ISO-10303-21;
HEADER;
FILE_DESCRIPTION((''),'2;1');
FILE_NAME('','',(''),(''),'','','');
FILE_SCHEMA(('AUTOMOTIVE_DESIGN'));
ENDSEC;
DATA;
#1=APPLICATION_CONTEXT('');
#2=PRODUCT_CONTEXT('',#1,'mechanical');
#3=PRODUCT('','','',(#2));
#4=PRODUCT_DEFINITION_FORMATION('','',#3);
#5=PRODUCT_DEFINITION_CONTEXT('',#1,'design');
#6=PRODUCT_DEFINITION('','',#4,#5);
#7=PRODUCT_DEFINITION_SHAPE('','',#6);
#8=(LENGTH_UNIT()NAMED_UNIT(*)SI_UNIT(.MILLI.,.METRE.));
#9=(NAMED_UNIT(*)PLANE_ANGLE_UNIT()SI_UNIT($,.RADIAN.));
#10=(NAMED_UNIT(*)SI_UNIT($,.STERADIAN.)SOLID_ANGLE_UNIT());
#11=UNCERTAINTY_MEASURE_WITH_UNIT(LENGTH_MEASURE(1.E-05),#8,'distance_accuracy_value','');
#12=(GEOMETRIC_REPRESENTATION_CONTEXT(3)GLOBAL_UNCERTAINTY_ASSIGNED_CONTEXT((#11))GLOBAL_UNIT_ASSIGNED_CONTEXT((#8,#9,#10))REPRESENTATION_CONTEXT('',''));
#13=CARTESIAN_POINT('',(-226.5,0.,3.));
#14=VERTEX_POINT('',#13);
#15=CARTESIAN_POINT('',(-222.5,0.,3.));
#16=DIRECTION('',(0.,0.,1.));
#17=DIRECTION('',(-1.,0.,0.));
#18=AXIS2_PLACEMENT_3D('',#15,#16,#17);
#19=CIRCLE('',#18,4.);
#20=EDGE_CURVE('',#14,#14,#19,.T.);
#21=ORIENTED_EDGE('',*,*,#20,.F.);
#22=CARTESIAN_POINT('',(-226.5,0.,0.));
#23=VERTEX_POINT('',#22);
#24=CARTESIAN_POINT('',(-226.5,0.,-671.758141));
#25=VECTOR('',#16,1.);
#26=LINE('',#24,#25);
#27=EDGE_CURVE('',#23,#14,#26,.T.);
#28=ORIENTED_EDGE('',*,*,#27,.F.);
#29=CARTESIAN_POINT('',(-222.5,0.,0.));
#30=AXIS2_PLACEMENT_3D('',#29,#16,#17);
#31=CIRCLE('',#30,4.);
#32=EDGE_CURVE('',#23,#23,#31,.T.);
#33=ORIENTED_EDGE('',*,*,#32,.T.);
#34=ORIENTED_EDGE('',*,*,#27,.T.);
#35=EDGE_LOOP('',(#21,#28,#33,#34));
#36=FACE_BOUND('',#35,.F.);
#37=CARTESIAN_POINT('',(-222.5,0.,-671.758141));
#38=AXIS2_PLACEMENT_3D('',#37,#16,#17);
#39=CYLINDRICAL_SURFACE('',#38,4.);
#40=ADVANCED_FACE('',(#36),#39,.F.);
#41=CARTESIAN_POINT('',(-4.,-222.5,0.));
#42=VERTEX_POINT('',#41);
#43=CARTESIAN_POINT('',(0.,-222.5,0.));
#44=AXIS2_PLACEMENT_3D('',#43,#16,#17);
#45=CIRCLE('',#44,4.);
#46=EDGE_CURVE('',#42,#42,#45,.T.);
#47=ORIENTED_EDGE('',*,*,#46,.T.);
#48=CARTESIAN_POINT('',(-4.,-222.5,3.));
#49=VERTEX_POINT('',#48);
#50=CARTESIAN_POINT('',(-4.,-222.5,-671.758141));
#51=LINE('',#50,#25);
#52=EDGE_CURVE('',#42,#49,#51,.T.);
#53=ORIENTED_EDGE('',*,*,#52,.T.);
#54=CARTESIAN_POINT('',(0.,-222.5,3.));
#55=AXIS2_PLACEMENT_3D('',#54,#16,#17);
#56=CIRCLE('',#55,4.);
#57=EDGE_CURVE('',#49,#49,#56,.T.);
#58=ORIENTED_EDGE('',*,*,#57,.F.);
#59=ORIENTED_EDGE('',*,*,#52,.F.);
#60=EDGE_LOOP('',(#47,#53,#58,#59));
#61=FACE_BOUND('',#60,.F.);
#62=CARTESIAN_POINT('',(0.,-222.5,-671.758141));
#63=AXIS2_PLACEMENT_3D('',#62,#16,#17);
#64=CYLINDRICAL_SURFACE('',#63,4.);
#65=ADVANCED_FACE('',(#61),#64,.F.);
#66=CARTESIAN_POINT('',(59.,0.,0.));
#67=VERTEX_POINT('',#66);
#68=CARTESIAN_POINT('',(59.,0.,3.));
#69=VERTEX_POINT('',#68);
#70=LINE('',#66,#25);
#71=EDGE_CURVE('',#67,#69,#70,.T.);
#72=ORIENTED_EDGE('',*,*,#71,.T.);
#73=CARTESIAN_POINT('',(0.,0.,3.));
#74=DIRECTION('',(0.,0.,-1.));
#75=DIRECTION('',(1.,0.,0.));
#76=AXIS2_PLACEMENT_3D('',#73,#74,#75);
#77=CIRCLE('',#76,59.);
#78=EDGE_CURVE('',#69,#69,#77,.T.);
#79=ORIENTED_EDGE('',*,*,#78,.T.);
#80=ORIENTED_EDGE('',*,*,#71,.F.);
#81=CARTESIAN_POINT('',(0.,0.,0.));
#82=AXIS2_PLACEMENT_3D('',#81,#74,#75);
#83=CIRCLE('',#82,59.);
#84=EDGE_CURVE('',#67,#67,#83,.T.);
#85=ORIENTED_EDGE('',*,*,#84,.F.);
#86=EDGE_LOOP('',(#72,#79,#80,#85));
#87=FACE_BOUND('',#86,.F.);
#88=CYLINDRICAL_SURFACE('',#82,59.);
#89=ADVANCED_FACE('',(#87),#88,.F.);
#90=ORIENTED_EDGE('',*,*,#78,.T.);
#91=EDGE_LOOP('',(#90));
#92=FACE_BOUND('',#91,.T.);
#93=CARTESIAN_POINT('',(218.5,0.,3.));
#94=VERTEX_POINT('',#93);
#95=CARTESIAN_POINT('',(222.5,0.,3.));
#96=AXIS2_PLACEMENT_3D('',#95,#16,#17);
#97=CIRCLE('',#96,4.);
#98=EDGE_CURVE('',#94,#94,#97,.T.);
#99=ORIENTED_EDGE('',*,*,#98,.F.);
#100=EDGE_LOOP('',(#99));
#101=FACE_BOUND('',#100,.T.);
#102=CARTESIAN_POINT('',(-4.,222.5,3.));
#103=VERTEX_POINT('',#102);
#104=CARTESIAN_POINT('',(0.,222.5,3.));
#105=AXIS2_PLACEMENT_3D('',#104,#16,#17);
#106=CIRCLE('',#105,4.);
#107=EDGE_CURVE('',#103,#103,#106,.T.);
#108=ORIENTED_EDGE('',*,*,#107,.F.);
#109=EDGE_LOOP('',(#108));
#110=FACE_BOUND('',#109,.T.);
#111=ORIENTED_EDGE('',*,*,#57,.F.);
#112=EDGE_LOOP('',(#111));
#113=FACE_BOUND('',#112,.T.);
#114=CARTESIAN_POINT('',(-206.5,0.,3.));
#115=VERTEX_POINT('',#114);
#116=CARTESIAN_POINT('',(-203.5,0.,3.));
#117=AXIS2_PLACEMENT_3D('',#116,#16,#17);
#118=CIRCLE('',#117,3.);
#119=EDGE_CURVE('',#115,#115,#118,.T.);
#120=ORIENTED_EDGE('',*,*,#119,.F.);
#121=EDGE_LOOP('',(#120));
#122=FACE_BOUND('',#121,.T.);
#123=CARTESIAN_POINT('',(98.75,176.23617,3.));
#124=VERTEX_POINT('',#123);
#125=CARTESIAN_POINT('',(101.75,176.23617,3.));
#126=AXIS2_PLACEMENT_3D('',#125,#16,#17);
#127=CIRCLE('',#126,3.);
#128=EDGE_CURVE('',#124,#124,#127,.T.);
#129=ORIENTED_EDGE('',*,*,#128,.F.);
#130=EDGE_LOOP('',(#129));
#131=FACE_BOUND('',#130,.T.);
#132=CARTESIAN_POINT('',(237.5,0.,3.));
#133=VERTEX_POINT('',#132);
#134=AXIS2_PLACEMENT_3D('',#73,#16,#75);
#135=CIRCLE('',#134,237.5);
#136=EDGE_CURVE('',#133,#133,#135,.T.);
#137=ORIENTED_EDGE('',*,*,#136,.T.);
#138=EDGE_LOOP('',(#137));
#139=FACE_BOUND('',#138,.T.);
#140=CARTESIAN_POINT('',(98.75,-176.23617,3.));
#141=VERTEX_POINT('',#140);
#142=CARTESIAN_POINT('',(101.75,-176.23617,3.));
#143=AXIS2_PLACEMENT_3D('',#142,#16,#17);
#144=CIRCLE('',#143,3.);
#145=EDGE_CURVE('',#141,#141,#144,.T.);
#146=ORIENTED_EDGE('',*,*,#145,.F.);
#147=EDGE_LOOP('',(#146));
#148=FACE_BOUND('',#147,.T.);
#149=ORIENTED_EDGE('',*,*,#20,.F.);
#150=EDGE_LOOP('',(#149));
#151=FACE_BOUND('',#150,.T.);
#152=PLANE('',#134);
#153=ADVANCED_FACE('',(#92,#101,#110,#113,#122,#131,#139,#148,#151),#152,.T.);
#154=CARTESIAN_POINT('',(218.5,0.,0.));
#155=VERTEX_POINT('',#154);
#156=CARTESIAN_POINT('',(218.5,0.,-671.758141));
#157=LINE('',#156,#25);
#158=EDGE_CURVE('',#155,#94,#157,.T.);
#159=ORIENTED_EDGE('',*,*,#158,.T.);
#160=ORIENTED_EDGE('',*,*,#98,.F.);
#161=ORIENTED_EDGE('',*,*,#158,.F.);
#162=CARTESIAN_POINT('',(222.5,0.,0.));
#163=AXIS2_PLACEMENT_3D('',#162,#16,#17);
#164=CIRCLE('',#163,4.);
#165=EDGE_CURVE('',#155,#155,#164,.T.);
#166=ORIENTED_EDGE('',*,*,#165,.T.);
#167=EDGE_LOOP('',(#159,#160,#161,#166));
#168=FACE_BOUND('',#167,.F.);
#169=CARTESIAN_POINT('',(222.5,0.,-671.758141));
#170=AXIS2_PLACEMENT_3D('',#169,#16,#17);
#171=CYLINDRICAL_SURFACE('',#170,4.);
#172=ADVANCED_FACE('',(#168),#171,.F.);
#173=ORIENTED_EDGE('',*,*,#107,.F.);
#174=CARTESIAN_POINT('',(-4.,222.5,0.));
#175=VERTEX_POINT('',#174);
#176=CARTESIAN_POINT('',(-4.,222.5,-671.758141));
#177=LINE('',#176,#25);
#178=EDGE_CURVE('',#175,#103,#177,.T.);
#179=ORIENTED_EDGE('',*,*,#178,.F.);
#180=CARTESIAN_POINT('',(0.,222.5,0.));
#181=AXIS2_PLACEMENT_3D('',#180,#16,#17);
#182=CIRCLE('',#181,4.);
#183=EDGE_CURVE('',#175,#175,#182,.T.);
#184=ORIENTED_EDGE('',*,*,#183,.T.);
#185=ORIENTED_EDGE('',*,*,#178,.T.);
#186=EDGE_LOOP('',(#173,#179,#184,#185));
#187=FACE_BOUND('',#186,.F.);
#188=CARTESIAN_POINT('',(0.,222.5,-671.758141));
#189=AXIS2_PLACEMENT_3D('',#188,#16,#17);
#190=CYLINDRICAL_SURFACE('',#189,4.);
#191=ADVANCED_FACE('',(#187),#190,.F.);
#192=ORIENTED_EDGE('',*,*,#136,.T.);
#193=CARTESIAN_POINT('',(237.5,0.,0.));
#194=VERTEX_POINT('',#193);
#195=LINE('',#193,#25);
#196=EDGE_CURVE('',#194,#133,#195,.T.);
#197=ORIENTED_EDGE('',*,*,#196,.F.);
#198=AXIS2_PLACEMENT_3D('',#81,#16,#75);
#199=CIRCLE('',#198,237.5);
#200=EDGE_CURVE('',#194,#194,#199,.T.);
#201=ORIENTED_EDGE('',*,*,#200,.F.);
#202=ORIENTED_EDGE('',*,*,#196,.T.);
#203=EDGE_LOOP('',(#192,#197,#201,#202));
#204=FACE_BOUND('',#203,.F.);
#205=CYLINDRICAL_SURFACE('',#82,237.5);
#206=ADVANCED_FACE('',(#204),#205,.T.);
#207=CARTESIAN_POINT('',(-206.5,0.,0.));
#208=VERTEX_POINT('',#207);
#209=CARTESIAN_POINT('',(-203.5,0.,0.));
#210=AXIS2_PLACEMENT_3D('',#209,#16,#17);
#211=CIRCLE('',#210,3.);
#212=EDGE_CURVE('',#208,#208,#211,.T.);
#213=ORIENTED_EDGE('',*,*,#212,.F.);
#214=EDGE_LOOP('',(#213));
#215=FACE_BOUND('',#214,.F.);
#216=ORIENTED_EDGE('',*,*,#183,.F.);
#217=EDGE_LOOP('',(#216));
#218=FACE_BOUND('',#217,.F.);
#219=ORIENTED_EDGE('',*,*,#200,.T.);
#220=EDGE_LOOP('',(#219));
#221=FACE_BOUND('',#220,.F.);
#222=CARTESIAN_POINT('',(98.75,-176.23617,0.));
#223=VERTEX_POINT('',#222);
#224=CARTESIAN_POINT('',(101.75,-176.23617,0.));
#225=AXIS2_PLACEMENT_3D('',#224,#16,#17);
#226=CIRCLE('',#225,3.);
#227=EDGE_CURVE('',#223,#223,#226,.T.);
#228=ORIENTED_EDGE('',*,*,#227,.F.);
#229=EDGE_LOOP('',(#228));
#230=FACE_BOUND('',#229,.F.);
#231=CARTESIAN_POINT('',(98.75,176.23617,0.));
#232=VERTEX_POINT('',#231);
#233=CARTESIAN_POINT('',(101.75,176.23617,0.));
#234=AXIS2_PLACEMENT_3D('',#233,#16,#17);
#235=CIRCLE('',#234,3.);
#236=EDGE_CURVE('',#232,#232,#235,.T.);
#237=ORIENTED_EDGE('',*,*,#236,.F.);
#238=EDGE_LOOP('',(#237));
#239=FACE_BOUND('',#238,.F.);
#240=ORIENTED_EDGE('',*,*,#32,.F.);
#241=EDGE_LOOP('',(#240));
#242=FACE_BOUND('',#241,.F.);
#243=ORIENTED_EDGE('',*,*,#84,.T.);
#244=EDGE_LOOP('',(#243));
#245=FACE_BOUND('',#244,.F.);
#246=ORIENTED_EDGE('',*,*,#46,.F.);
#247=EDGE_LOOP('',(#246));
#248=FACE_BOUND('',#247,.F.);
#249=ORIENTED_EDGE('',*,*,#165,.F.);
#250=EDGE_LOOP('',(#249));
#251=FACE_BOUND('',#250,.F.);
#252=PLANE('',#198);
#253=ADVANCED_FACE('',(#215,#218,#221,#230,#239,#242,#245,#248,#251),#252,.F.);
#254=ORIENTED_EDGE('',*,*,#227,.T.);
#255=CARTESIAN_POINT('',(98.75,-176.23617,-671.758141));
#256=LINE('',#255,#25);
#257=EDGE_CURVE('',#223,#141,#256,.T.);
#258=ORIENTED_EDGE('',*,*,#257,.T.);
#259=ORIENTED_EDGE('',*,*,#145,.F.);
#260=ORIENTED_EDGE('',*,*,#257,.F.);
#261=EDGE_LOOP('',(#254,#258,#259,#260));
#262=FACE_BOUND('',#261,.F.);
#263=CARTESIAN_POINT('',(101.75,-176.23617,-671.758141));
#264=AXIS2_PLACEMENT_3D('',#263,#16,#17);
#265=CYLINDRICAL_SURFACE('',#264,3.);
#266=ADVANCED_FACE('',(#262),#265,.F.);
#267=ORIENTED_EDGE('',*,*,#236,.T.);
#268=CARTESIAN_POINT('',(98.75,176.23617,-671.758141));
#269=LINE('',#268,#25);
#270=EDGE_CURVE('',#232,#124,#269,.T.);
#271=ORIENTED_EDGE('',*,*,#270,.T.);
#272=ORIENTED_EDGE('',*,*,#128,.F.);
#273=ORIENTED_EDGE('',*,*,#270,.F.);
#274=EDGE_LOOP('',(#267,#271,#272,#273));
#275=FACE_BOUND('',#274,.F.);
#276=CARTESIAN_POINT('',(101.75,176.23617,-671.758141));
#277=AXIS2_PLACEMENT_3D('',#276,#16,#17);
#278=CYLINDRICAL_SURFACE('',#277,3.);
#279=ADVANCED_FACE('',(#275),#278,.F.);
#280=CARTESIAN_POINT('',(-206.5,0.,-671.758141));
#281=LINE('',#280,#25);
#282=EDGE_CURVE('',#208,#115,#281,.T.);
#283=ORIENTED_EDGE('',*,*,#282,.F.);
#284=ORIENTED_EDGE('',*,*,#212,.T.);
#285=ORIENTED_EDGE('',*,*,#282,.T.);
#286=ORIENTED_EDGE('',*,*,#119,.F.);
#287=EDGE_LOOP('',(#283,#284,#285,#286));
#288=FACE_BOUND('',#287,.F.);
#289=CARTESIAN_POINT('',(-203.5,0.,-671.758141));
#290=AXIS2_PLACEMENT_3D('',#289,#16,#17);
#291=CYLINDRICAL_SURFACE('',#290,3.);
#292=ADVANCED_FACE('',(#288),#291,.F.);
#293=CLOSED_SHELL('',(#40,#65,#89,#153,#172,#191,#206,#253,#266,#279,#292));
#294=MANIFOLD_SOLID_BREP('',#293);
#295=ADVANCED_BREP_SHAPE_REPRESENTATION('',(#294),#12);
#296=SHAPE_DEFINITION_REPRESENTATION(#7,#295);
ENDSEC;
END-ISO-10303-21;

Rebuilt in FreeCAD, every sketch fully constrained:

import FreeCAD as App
import Part
import Sketcher
Q = App.Units.Quantity

doc = App.newDocument("Part")
params = doc.addObject("Spreadsheet::Sheet", "Params")
for row, (alias, value) in enumerate([
    ("sketch1_diameter", "475 mm"),
    ("sketch1_diameter2", "118 mm"),
    ("pad1_length", "3 mm"),
    ("sketch2_diameter", "8 mm"),
    ("hole_diameter", "8 mm"),
    ("sketch3_diameter", "6 mm"),
    ("hole2_diameter", "6 mm"),
], start=1):
    params.set(f"A{row}", alias)
    params.set(f"B{row}", "=" + value)
    params.setAlias(f"B{row}", alias)

body = doc.addObject("PartDesign::Body", "Body")

sketch1 = body.newObject("Sketcher::SketchObject", "Sketch")
sketch1.AttachmentSupport = (doc.getObject("XY_Plane"), [""])
sketch1.MapMode = "FlatFace"
sketch1.addGeometry([
    Part.Circle(App.Vector(0, 0, 0), App.Vector(0, 0, 1), 237.5),
    Part.Circle(App.Vector(0, 0, 0), App.Vector(0, 0, 1), 59),
], False)
sketch1.addConstraint([
    Sketcher.Constraint("Coincident", 0, 3, -1, 1),
    Sketcher.Constraint("Coincident", 1, 3, -1, 1),
    Sketcher.Constraint("Diameter", 0, Q("475 mm")),
    Sketcher.Constraint("Diameter", 1, Q("118 mm")),
])
sketch1.setExpression("Constraints[2]", "Params.sketch1_diameter")
sketch1.setExpression("Constraints[3]", "Params.sketch1_diameter2")
pad1 = body.newObject("PartDesign::Pad", "Pad")
pad1.Profile = sketch1
pad1.setExpression("Length", "Params.pad1_length")

sketch2 = body.newObject("Sketcher::SketchObject", "Sketch001")
sketch2.AttachmentSupport = (doc.getObject("XY_Plane"), [""])
sketch2.MapMode = "FlatFace"
sketch2.addGeometry([
    Part.Circle(App.Vector(222.5, 0, 0), App.Vector(0, 0, 1), 4),
    Part.Circle(App.Vector(0, -222.5, 0), App.Vector(0, 0, 1), 4),
    Part.Circle(App.Vector(-222.5, 0, 0), App.Vector(0, 0, 1), 4),
    Part.Circle(App.Vector(0, 222.5, 0), App.Vector(0, 0, 1), 4),
], False)
sketch2.addConstraint([
    Sketcher.Constraint("Equal", 0, 1),
    Sketcher.Constraint("Equal", 1, 2),
    Sketcher.Constraint("Equal", 2, 3),
    Sketcher.Constraint("Symmetric", 0, 3, 2, 3, -1, 1),
    Sketcher.Constraint("Symmetric", 1, 3, 3, 3, -1, 1),
    Sketcher.Constraint("PointOnObject", 0, 3, -1),
    Sketcher.Constraint("PointOnObject", 1, 3, -2),
    Sketcher.Constraint("Diameter", 0, Q("8 mm")),
    Sketcher.Constraint("DistanceX", 2, 3, 0, 3, Q("445 mm")),
    Sketcher.Constraint("DistanceY", 1, 3, 3, 3, Q("445 mm")),
])
sketch2.setExpression("Constraints[7]", "Params.sketch2_diameter")
doc.recompute()
hole = body.newObject("PartDesign::Hole", "Hole")
hole.Profile = sketch2
hole.ThreadType = "None"
hole.setExpression("Diameter", "Params.hole_diameter")
hole.DepthType = "ThroughAll"
hole.Reversed = True

sketch3 = body.newObject("Sketcher::SketchObject", "Sketch002")
sketch3.AttachmentSupport = (doc.getObject("XY_Plane"), [""])
sketch3.MapMode = "FlatFace"
sketch3.addGeometry([
    Part.Circle(App.Vector(-203.5, 0, 0), App.Vector(0, 0, 1), 3),
    Part.Circle(App.Vector(101.75, -176.23617, 0), App.Vector(0, 0, 1), 3),
    Part.Circle(App.Vector(101.75, 176.23617, 0), App.Vector(0, 0, 1), 3),
], False)
sketch3.addConstraint([
    Sketcher.Constraint("Equal", 0, 1),
    Sketcher.Constraint("Equal", 1, 2),
    Sketcher.Constraint("Symmetric", 1, 3, 2, 3, -1),
    Sketcher.Constraint("PointOnObject", 0, 3, -1),
    Sketcher.Constraint("Diameter", 0, Q("6 mm")),
    Sketcher.Constraint("DistanceX", 0, 3, -1, 1, Q("203.5 mm")),
    Sketcher.Constraint("DistanceX", -1, 1, 1, 3, Q("101.75 mm")),
    Sketcher.Constraint("DistanceY", 1, 3, -1, 1, Q("176.23617 mm")),
])
sketch3.setExpression("Constraints[4]", "Params.sketch3_diameter")
doc.recompute()
hole2 = body.newObject("PartDesign::Hole", "Hole001")
hole2.Profile = sketch3
hole2.ThreadType = "None"
hole2.setExpression("Diameter", "Params.hole2_diameter")
hole2.DepthType = "ThroughAll"
hole2.Reversed = True

doc.recompute()
